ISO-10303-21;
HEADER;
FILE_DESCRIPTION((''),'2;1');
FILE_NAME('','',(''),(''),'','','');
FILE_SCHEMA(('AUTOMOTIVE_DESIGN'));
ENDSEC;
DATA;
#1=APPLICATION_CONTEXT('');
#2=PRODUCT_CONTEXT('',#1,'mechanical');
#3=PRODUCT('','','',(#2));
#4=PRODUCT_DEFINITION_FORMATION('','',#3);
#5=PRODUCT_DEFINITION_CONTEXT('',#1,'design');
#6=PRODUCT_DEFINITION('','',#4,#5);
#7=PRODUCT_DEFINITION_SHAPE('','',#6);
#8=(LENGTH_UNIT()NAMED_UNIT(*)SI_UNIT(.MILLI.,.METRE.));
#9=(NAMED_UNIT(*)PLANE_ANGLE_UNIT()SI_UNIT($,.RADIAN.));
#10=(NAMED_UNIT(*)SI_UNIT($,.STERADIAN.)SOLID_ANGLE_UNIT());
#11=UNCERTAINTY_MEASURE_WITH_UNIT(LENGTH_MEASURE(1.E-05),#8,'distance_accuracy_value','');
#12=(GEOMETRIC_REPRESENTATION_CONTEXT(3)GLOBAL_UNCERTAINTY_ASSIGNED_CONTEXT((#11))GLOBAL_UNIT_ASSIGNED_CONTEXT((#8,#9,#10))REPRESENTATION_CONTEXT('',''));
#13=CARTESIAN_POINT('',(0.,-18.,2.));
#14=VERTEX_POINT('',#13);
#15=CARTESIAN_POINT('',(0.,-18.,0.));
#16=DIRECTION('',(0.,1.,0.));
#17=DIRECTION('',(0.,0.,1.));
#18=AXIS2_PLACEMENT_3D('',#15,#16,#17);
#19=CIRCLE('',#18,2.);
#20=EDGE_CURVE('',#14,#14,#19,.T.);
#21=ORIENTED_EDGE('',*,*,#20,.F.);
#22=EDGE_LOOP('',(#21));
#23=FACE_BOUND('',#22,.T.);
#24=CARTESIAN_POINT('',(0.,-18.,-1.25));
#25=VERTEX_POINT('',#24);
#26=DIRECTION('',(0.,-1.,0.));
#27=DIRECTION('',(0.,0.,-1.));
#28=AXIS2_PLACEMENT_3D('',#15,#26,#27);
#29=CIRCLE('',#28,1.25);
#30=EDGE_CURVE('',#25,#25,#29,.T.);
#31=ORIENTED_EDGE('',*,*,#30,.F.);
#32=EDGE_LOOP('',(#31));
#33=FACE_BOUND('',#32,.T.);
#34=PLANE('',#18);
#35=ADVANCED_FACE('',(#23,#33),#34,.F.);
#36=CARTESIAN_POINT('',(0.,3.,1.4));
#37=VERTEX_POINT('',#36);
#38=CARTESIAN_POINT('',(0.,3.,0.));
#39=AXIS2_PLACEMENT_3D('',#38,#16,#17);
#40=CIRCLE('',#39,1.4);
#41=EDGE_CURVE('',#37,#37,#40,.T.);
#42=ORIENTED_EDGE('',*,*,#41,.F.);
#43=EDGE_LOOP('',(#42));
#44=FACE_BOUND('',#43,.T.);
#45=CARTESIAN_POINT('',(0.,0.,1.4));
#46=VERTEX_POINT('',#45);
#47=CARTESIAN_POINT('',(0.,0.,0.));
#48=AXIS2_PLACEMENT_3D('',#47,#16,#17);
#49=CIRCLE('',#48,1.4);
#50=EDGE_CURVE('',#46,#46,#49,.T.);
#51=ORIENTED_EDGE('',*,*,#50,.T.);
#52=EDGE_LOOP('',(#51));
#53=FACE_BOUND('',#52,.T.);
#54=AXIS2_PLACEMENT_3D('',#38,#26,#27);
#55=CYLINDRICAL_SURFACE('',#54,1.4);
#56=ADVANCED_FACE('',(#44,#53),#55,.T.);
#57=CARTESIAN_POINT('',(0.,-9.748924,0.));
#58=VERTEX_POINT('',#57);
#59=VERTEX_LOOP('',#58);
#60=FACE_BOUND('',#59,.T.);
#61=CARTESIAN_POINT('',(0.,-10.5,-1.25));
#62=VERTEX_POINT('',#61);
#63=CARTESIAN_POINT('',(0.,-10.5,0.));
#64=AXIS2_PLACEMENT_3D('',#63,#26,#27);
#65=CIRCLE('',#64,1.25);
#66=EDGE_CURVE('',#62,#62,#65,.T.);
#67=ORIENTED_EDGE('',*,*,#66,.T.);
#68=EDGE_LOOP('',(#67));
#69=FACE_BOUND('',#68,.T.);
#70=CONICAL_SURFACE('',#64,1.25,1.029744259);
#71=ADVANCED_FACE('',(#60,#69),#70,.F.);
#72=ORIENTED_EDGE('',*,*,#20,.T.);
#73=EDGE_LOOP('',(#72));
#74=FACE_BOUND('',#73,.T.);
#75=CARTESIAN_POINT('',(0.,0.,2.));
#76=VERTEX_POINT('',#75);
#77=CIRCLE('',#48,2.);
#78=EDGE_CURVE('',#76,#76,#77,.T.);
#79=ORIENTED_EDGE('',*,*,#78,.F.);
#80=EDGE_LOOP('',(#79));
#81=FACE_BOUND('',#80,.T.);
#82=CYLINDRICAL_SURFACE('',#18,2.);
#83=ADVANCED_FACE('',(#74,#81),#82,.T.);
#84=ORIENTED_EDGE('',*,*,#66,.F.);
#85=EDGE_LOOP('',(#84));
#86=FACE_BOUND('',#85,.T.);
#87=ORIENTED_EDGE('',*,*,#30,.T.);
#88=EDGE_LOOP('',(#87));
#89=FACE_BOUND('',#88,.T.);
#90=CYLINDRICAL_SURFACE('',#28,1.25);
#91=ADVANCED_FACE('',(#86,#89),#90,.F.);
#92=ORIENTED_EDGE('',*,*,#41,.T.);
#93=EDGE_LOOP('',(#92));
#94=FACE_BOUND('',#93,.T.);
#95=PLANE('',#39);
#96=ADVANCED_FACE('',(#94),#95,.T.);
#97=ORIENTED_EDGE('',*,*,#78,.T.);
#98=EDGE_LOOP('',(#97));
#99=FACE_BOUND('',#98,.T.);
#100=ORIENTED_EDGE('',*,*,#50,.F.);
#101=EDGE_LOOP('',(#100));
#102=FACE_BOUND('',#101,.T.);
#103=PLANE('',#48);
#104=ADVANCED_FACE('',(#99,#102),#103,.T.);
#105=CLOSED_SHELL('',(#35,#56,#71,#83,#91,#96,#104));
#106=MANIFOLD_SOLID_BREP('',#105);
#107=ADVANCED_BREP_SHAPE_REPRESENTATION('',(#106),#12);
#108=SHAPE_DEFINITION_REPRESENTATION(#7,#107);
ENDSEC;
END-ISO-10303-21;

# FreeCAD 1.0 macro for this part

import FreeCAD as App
import Part
import Sketcher
from FreeCAD import Vector

doc = App.newDocument("Part")
body = doc.addObject("PartDesign::Body", "Body")

# Sketch on XZ plane
sketch1 = body.newObject("Sketcher::SketchObject", "Sketch")
sketch1.AttachmentSupport = (doc.getObject("XZ_Plane"), [""])
sketch1.MapMode = "FlatFace"
sketch1.addGeometry(Part.Circle(Vector(0, 0, 0), Vector(0, 0, 1), 2), False)
sketch1.addConstraint([
    Sketcher.Constraint("Coincident", 0, 3, -1, 1),
    Sketcher.Constraint("Diameter", 0, 4.0),
])
pad1 = body.newObject("PartDesign::Pad", "Pad")
pad1.Profile = sketch1
pad1.Length = 18

# Sketch on XZ plane
sketch2 = body.newObject("Sketcher::SketchObject", "Sketch001")
sketch2.AttachmentSupport = (doc.getObject("XZ_Plane"), [""])
sketch2.MapMode = "FlatFace"
sketch2.addGeometry(Part.Circle(Vector(0, 0, 0), Vector(0, 0, 1), 1.4), False)
sketch2.addConstraint([
    Sketcher.Constraint("Coincident", 0, 3, -1, 1),
    Sketcher.Constraint("Diameter", 0, 2.8),
])
pad2 = body.newObject("PartDesign::Pad", "Pad001")
pad2.Profile = sketch2
pad2.Length = 3
pad2.Reversed = True

# Sketch on XZ plane
sketch3 = body.newObject("Sketcher::SketchObject", "Sketch002")
sketch3.AttachmentSupport = (doc.getObject("XZ_Plane"), [""])
sketch3.MapMode = "FlatFace"
sketch3.AttachmentOffset = App.Placement(Vector(0, 0, 18), App.Rotation())
sketch3.addGeometry(Part.Circle(Vector(0, 0, 0), Vector(0, 0, 1), 1.2), False)
sketch3.addConstraint([
    Sketcher.Constraint("Coincident", 0, 3, -1, 1),
    Sketcher.Constraint("Diameter", 0, 2.5),
])
doc.recompute()
hole = body.newObject("PartDesign::Hole", "Hole")
hole.Profile = sketch3
hole.ThreadType = "None"
hole.Diameter = 2.5
hole.DepthType = "Dimension"
hole.Depth = 7.5
hole.DrillPoint = "Angled"
hole.DrillPointAngle = 118

doc.recompute()
